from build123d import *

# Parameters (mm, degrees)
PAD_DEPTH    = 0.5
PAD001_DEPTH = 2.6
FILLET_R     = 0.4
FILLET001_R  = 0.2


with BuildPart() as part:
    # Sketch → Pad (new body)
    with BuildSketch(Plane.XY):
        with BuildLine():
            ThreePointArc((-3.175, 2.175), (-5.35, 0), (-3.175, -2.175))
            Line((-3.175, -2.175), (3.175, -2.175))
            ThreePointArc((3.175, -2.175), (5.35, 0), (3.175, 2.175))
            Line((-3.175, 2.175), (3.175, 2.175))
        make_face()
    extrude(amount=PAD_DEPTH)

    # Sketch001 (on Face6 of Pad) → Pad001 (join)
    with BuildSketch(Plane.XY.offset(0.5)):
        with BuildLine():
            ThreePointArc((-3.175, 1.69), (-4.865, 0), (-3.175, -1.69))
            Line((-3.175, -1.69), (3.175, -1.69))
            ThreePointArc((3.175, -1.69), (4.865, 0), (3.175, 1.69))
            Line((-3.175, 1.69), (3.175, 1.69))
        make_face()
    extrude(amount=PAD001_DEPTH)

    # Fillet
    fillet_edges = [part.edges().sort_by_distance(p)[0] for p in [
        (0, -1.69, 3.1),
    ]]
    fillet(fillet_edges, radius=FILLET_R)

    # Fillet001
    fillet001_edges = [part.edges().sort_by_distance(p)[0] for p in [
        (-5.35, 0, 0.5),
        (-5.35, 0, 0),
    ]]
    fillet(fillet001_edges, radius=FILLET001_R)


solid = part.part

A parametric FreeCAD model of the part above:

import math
import FreeCAD as App
import Part
import Sketcher


def edges_at(feature, points):
    """Names of the edges that pass closest to the given points."""
    edges = feature.Shape.Edges
    near = lambda p: min(range(len(edges)), key=lambda i: edges[i].distToShape(Part.Vertex(*p))[0])
    return sorted({f"Edge{near(p) + 1}" for p in points})

doc = App.newDocument("Part")
body = doc.addObject("PartDesign::Body", "Body")

# Sketch on XY plane
sketch1 = body.newObject("Sketcher::SketchObject", "Sketch")
sketch1.AttachmentSupport = (doc.getObject("XY_Plane"), [""])
sketch1.MapMode = "FlatFace"
sketch1.addGeometry(Part.ArcOfCircle(Part.Circle(App.Vector(-3.2, 0, 0), App.Vector(0, 0, 1), 2.2), math.radians(90), math.radians(270)), False)
sketch1.addGeometry(Part.LineSegment(App.Vector(-3.2, -2.2, 0), App.Vector(3.2, -2.2, 0)), False)
sketch1.addGeometry(Part.ArcOfCircle(Part.Circle(App.Vector(3.2, 0, 0), App.Vector(0, 0, 1), 2.2), math.radians(-90), math.radians(90)), False)
sketch1.addGeometry(Part.LineSegment(App.Vector(3.2, 2.2, 0), App.Vector(-3.2, 2.2, 0)), False)
sketch1.addConstraint(Sketcher.Constraint("Tangent", 0, 2, 1, 1))
sketch1.addConstraint(Sketcher.Constraint("Tangent", 1, 2, 2, 1))
sketch1.addConstraint(Sketcher.Constraint("Tangent", 2, 2, 3, 1))
sketch1.addConstraint(Sketcher.Constraint("Tangent", 3, 2, 0, 1))
sketch1.addConstraint(Sketcher.Constraint("Horizontal", 1))
sketch1.addConstraint(Sketcher.Constraint("Horizontal", 3))
sketch1.addConstraint(Sketcher.Constraint("Symmetric", 0, 3, 2, 3, -1, 1))
sketch1.addConstraint(Sketcher.Constraint("Radius", 0, 2.175))
sketch1.addConstraint(Sketcher.Constraint("DistanceX", 1, 1, 1, 2, 6.35))
pad1 = body.newObject("PartDesign::Pad", "Pad")
pad1.Profile = sketch1
pad1.Length = 0.5

# Sketch on XY plane
sketch2 = body.newObject("Sketcher::SketchObject", "Sketch001")
sketch2.AttachmentSupport = (doc.getObject("XY_Plane"), [""])
sketch2.MapMode = "FlatFace"
sketch2.AttachmentOffset = App.Placement(App.Vector(0, 0, 0.5), App.Rotation())
sketch2.addGeometry(Part.ArcOfCircle(Part.Circle(App.Vector(-3.2, 0, 0), App.Vector(0, 0, 1), 1.7), math.radians(90), math.radians(270)), False)
sketch2.addGeometry(Part.LineSegment(App.Vector(-3.2, -1.7, 0), App.Vector(3.2, -1.7, 0)), False)
sketch2.addGeometry(Part.ArcOfCircle(Part.Circle(App.Vector(3.2, 0, 0), App.Vector(0, 0, 1), 1.7), math.radians(-90), math.radians(90)), False)
sketch2.addGeometry(Part.LineSegment(App.Vector(3.2, 1.7, 0), App.Vector(-3.2, 1.7, 0)), False)
sketch2.addConstraint(Sketcher.Constraint("Tangent", 0, 2, 1, 1))
sketch2.addConstraint(Sketcher.Constraint("Tangent", 1, 2, 2, 1))
sketch2.addConstraint(Sketcher.Constraint("Tangent", 2, 2, 3, 1))
sketch2.addConstraint(Sketcher.Constraint("Tangent", 3, 2, 0, 1))
sketch2.addConstraint(Sketcher.Constraint("Horizontal", 1))
sketch2.addConstraint(Sketcher.Constraint("Horizontal", 3))
sketch2.addConstraint(Sketcher.Constraint("Symmetric", 0, 3, 2, 3, -1, 1))
sketch2.addConstraint(Sketcher.Constraint("Radius", 0, 1.69))
sketch2.addConstraint(Sketcher.Constraint("DistanceX", 1, 1, 1, 2, 6.35))
pad2 = body.newObject("PartDesign::Pad", "Pad001")
pad2.Profile = sketch2
pad2.Length = 2.6
doc.recompute()

fillet = body.newObject("PartDesign::Fillet", "Fillet")
fillet.Base = (pad2, edges_at(pad2, [(0, -1.69, 3.1)]))
fillet.Radius = 0.4
doc.recompute()

fillet2 = body.newObject("PartDesign::Fillet", "Fillet001")
fillet2.Base = (fillet, edges_at(fillet, [(-5.35, 0, 0.5), (-5.35, 0, 0)]))
fillet2.Radius = 0.2

doc.recompute()
